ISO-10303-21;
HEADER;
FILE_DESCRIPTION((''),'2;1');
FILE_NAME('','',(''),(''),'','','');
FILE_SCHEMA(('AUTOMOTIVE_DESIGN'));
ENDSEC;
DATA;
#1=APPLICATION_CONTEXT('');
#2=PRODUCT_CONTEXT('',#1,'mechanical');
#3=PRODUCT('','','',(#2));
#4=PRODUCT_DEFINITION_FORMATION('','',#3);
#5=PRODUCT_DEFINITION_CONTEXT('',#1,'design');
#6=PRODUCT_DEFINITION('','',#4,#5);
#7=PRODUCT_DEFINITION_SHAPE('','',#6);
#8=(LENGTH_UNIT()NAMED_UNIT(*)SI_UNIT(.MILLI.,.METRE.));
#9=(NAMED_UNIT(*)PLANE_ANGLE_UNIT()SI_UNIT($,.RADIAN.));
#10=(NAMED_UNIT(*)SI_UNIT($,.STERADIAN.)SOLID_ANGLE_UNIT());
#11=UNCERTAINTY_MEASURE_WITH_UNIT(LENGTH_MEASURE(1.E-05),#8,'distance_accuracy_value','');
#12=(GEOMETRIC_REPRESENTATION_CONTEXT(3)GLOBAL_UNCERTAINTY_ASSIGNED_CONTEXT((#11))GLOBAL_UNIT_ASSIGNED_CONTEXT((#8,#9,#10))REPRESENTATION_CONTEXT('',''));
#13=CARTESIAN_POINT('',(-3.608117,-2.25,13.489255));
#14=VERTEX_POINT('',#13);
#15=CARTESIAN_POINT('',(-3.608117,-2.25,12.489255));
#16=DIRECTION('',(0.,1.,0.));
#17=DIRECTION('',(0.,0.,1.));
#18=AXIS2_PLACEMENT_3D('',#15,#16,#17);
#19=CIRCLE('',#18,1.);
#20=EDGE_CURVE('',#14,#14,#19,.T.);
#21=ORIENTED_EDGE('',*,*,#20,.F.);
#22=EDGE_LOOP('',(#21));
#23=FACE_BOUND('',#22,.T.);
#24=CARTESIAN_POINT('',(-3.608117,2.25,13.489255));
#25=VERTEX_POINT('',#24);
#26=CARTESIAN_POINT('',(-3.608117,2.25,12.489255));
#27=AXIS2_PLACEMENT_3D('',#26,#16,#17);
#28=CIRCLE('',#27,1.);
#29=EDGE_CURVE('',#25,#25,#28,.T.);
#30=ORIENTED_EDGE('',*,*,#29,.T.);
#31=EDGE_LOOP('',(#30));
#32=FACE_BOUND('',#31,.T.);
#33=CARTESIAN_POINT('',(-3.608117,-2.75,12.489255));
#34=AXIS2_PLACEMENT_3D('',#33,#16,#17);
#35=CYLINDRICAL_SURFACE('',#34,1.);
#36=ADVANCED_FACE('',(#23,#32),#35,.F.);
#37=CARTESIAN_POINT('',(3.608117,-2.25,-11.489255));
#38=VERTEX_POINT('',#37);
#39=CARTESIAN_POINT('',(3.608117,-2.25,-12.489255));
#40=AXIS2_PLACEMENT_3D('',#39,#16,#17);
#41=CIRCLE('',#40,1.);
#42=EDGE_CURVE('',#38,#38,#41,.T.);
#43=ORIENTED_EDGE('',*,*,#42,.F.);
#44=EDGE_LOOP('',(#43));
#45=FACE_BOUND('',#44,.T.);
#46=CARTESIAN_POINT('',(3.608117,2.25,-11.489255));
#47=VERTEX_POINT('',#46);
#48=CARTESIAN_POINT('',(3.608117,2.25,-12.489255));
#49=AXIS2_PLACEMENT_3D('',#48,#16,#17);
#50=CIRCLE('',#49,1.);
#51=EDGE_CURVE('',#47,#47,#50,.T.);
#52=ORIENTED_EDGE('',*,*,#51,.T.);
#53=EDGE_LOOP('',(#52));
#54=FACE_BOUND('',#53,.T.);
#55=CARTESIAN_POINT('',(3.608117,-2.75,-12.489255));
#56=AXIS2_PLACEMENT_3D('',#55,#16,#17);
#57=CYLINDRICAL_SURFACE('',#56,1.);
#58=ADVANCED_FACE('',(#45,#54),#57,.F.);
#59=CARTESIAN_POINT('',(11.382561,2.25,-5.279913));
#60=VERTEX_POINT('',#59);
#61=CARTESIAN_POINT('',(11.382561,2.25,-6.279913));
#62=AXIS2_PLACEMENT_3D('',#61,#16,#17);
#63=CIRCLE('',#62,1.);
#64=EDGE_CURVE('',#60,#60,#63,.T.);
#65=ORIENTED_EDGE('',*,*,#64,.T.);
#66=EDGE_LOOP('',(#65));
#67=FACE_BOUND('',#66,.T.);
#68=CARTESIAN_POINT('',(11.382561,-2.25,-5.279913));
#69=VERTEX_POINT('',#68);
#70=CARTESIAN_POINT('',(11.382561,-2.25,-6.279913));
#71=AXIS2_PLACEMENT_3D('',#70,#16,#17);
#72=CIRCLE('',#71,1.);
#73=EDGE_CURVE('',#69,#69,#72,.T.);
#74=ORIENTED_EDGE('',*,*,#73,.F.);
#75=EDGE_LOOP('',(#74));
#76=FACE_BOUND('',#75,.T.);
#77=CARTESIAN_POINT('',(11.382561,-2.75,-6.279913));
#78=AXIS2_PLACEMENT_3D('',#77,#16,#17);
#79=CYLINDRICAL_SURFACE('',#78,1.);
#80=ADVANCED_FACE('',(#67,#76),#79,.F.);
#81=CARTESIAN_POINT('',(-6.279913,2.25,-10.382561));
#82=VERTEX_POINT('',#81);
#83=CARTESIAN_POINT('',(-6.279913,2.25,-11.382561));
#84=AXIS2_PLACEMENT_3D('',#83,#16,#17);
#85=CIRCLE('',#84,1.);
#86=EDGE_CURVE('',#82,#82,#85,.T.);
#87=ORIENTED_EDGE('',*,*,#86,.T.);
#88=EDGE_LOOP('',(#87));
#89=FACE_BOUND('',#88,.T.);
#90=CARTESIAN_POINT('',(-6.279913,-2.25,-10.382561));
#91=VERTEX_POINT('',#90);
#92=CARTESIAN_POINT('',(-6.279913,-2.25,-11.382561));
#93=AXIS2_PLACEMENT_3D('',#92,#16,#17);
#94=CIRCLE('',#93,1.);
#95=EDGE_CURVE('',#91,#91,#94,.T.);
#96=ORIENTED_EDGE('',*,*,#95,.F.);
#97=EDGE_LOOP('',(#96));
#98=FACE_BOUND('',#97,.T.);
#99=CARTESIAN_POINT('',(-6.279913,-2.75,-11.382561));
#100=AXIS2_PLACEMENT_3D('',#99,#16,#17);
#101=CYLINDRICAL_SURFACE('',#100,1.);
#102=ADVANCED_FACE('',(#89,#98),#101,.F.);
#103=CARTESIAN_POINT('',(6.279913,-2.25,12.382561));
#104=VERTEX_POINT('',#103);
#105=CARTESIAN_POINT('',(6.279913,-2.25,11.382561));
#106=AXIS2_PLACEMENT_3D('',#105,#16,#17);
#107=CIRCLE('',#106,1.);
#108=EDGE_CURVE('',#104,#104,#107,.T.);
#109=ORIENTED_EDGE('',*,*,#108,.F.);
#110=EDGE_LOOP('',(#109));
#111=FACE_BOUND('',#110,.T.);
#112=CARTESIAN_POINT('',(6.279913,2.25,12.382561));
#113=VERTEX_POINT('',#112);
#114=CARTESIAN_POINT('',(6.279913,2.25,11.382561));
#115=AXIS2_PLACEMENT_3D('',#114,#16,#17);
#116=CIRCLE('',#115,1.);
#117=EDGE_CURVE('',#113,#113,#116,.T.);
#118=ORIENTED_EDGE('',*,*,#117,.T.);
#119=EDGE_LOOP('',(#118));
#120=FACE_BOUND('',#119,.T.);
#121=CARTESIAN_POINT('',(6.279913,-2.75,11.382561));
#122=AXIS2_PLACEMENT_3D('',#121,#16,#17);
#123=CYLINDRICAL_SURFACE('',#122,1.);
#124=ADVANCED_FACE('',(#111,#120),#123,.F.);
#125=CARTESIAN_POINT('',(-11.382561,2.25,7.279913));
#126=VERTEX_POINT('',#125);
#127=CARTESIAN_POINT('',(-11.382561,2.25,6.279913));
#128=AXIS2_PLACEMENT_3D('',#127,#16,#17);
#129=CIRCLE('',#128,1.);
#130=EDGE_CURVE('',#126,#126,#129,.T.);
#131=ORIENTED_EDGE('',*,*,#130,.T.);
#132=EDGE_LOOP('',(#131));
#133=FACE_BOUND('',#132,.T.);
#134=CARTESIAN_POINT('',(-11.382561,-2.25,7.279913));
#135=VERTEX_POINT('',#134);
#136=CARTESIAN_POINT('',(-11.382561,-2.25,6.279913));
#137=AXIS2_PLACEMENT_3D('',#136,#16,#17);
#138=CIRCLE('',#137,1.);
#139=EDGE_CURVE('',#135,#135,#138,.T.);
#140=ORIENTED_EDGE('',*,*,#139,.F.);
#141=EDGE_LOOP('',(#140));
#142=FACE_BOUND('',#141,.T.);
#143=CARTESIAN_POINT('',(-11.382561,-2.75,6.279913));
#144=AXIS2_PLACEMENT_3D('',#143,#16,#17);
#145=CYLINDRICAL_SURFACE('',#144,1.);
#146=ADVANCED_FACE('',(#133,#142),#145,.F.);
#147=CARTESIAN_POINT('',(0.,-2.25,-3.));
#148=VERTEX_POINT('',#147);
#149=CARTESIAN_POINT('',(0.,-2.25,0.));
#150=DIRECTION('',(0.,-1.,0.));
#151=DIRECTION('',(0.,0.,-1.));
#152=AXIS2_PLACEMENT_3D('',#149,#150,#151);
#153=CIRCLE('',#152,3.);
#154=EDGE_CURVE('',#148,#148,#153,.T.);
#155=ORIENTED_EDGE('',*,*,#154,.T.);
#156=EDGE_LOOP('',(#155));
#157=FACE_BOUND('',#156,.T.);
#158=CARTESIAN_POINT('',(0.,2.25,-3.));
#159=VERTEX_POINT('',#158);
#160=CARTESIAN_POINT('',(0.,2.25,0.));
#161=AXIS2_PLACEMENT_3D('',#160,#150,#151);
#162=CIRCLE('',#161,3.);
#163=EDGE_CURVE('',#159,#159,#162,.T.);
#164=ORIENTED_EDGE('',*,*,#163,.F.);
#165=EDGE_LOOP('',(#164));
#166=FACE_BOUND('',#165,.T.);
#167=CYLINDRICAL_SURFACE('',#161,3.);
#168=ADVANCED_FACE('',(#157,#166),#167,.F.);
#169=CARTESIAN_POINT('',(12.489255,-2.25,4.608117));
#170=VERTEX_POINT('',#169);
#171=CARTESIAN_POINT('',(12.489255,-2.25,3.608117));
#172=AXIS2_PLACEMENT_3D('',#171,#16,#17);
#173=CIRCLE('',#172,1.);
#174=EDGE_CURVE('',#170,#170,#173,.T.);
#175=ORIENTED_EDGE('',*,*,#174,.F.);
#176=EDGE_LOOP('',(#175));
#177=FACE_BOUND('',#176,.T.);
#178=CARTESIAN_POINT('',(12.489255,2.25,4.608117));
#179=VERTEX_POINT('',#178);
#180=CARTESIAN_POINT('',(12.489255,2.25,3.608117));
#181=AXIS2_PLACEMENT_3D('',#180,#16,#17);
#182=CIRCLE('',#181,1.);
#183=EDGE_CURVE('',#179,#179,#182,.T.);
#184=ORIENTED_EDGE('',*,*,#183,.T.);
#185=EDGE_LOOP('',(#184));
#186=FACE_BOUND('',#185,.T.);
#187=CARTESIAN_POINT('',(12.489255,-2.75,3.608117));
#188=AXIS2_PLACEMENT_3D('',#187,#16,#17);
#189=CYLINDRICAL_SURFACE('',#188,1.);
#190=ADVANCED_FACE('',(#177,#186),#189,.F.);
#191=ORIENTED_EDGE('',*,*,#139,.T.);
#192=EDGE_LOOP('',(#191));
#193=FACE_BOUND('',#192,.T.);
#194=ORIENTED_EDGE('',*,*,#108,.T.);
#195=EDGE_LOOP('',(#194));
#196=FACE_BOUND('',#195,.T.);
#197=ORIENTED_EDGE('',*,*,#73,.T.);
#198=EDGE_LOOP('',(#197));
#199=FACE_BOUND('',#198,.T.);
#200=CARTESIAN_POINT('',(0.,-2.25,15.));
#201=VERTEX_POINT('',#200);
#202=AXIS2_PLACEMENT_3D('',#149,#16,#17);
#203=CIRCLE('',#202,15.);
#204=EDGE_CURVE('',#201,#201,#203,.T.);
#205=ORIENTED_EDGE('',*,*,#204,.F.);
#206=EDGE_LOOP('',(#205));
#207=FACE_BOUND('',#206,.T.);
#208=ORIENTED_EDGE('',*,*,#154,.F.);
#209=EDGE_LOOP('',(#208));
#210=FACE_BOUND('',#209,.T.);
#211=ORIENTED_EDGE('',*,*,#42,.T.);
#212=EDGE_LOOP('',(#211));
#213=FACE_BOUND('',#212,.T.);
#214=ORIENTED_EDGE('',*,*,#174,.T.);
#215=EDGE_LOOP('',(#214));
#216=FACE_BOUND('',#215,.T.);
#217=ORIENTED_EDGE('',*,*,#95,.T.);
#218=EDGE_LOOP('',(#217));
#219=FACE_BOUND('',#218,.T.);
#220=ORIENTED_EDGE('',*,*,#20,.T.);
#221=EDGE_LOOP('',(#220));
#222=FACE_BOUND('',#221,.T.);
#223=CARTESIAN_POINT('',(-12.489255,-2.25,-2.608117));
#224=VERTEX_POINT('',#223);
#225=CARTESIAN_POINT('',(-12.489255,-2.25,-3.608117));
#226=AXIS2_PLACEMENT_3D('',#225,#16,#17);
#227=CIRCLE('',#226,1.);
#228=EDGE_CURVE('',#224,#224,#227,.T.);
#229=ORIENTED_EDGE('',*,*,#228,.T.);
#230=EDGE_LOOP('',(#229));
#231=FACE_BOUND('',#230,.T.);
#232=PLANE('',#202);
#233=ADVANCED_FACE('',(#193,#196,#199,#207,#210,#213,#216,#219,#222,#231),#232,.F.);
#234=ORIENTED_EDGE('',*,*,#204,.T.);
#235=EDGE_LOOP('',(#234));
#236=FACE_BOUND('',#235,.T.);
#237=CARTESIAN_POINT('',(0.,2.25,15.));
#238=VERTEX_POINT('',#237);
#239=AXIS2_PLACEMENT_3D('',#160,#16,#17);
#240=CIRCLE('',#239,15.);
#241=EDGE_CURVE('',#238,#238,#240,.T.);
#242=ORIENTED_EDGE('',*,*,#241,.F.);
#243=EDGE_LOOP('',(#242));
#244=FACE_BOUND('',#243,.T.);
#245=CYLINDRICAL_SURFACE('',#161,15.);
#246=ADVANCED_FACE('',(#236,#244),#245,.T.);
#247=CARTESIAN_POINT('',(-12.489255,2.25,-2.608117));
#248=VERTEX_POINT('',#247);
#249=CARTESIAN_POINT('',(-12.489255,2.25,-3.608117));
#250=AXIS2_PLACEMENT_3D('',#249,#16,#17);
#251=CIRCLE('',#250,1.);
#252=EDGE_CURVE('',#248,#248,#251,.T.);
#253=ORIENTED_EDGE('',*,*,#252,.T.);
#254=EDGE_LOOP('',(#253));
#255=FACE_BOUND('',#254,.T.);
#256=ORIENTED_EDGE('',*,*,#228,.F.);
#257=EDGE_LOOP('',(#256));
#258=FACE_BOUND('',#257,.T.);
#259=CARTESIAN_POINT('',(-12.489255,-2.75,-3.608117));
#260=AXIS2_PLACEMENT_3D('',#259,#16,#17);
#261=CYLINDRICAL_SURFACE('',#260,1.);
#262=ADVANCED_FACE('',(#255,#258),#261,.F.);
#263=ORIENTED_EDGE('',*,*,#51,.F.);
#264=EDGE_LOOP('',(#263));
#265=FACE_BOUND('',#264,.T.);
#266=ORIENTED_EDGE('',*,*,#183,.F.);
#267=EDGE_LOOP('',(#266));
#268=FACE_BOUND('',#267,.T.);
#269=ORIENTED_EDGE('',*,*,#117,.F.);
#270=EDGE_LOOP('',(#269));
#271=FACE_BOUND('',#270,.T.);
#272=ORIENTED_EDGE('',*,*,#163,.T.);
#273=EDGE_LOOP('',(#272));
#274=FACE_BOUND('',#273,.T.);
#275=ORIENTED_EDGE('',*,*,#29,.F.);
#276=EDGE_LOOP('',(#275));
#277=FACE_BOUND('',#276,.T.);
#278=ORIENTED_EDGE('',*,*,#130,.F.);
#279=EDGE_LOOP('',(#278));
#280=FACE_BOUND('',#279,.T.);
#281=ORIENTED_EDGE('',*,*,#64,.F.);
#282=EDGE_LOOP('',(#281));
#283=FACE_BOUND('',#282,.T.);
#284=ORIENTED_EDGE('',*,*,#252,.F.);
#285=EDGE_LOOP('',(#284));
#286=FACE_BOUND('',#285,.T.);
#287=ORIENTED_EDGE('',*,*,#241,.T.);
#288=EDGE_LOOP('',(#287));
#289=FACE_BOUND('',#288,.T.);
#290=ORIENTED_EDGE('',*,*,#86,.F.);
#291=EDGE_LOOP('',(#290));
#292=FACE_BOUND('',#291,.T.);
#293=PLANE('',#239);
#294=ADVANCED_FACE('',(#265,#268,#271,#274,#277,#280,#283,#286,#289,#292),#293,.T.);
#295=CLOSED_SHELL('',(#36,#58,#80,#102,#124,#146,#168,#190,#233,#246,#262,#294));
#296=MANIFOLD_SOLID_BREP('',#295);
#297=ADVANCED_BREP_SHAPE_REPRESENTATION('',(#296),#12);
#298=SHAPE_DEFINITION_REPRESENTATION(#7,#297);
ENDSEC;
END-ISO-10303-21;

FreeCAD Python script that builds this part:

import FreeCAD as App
import Part
import Sketcher

doc = App.newDocument("Part")
params = doc.addObject("Spreadsheet::Sheet", "Params")
for row, (alias, value) in enumerate([
    ("sketch1_diameter", "30 mm"),
    ("pad1_length", "4.5 mm"),
    ("sketch2_diameter", "2 mm"),
    ("pocket1_length", "5 mm"),
    ("sketch3_diameter", "6 mm"),
    ("pocket2_length", "4.5 mm"),
], start=1):
    params.set(f"A{row}", alias)
    params.set(f"B{row}", "=" + value)
    params.setAlias(f"B{row}", alias)

body = doc.addObject("PartDesign::Body", "Body")

sketch1 = body.newObject("Sketcher::SketchObject", "Sketch")
sketch1.AttachmentSupport = (doc.getObject("XZ_Plane"), [""])
sketch1.MapMode = "FlatFace"
sketch1.addGeometry(Part.Circle(App.Vector(0, 0, 0), App.Vector(0, 0, 1), 15), False)
sketch1.addConstraint(Sketcher.Constraint("Coincident", 0, 3, -1, 1))
sketch1.addConstraint(Sketcher.Constraint("Diameter", 0, 30.0))
sketch1.setExpression("Constraints[1]", "Params.sketch1_diameter")
pad1 = body.newObject("PartDesign::Pad", "Pad")
pad1.Profile = sketch1
pad1.setExpression("Length", "Params.pad1_length")
pad1.Midplane = True

sketch2 = body.newObject("Sketcher::SketchObject", "Sketch001")
sketch2.AttachmentSupport = (doc.getObject("XZ_Plane"), [""])
sketch2.MapMode = "FlatFace"
sketch2.AttachmentOffset = App.Placement(App.Vector(0, 0, -2.25), App.Rotation())
sketch2.addGeometry(Part.Circle(App.Vector(-11.4, 6.3, 0), App.Vector(0, 0, 1), 1), False)
sketch2.addGeometry(Part.Circle(App.Vector(-12.5, -3.6, 0), App.Vector(0, 0, 1), 1), False)
sketch2.addGeometry(Part.Circle(App.Vector(-6.3, -11.4, 0), App.Vector(0, 0, 1), 1), False)
sketch2.addGeometry(Part.Circle(App.Vector(3.6, -12.5, 0), App.Vector(0, 0, 1), 1), False)
sketch2.addGeometry(Part.Circle(App.Vector(11.4, -6.3, 0), App.Vector(0, 0, 1), 1), False)
sketch2.addGeometry(Part.Circle(App.Vector(12.5, 3.6, 0), App.Vector(0, 0, 1), 1), False)
sketch2.addGeometry(Part.Circle(App.Vector(6.3, 11.4, 0), App.Vector(0, 0, 1), 1), False)
sketch2.addGeometry(Part.Circle(App.Vector(-3.6, 12.5, 0), App.Vector(0, 0, 1), 1), False)
sketch2.addConstraint(Sketcher.Constraint("Equal", 0, 1))
sketch2.addConstraint(Sketcher.Constraint("Equal", 1, 2))
sketch2.addConstraint(Sketcher.Constraint("Equal", 2, 3))
sketch2.addConstraint(Sketcher.Constraint("Equal", 3, 4))
sketch2.addConstraint(Sketcher.Constraint("Equal", 4, 5))
sketch2.addConstraint(Sketcher.Constraint("Equal", 5, 6))
sketch2.addConstraint(Sketcher.Constraint("Equal", 6, 7))
sketch2.addConstraint(Sketcher.Constraint("Symmetric", 0, 3, 4, 3, -1, 1))
sketch2.addConstraint(Sketcher.Constraint("Symmetric", 1, 3, 5, 3, -1, 1))
sketch2.addConstraint(Sketcher.Constraint("Symmetric", 2, 3, 6, 3, -1, 1))
sketch2.addConstraint(Sketcher.Constraint("Symmetric", 3, 3, 7, 3, -1, 1))
sketch2.addConstraint(Sketcher.Constraint("Diameter", 0, 2.0))
sketch2.addConstraint(Sketcher.Constraint("DistanceX", 0, 3, -1, 1, 11.382561))
sketch2.addConstraint(Sketcher.Constraint("DistanceY", 2, 3, -1, 1, 11.382561))
sketch2.addConstraint(Sketcher.Constraint("DistanceY", 1, 3, 0, 3, 9.88803))
sketch2.addConstraint(Sketcher.Constraint("DistanceX", 0, 3, 2, 3, 5.102648))
sketch2.addConstraint(Sketcher.Constraint("DistanceX", 2, 3, 3, 3, 9.88803))
sketch2.addConstraint(Sketcher.Constraint("DistanceY", 2, 3, 4, 3, 5.102648))
sketch2.addConstraint(Sketcher.Constraint("DistanceX", 1, 3, 5, 3, 24.97851))
sketch2.addConstraint(Sketcher.Constraint("DistanceY", 3, 3, -1, 1, 12.489255))
sketch2.setExpression("Constraints[11]", "Params.sketch2_diameter")
pocket1 = body.newObject("PartDesign::Pocket", "Pocket")
pocket1.Profile = sketch2
pocket1.setExpression("Length", "Params.pocket1_length")
pocket1.Reversed = True

sketch3 = body.newObject("Sketcher::SketchObject", "Sketch002")
sketch3.AttachmentSupport = (doc.getObject("XZ_Plane"), [""])
sketch3.MapMode = "FlatFace"
sketch3.AttachmentOffset = App.Placement(App.Vector(0, 0, 2.25), App.Rotation())
sketch3.addGeometry(Part.Circle(App.Vector(0, 0, 0), App.Vector(0, 0, 1), 3), False)
sketch3.addConstraint(Sketcher.Constraint("Coincident", 0, 3, -1, 1))
sketch3.addConstraint(Sketcher.Constraint("Diameter", 0, 6.0))
sketch3.setExpression("Constraints[1]", "Params.sketch3_diameter")
pocket2 = body.newObject("PartDesign::Pocket", "Pocket001")
pocket2.Profile = sketch3
pocket2.setExpression("Length", "Params.pocket2_length")

doc.recompute()
